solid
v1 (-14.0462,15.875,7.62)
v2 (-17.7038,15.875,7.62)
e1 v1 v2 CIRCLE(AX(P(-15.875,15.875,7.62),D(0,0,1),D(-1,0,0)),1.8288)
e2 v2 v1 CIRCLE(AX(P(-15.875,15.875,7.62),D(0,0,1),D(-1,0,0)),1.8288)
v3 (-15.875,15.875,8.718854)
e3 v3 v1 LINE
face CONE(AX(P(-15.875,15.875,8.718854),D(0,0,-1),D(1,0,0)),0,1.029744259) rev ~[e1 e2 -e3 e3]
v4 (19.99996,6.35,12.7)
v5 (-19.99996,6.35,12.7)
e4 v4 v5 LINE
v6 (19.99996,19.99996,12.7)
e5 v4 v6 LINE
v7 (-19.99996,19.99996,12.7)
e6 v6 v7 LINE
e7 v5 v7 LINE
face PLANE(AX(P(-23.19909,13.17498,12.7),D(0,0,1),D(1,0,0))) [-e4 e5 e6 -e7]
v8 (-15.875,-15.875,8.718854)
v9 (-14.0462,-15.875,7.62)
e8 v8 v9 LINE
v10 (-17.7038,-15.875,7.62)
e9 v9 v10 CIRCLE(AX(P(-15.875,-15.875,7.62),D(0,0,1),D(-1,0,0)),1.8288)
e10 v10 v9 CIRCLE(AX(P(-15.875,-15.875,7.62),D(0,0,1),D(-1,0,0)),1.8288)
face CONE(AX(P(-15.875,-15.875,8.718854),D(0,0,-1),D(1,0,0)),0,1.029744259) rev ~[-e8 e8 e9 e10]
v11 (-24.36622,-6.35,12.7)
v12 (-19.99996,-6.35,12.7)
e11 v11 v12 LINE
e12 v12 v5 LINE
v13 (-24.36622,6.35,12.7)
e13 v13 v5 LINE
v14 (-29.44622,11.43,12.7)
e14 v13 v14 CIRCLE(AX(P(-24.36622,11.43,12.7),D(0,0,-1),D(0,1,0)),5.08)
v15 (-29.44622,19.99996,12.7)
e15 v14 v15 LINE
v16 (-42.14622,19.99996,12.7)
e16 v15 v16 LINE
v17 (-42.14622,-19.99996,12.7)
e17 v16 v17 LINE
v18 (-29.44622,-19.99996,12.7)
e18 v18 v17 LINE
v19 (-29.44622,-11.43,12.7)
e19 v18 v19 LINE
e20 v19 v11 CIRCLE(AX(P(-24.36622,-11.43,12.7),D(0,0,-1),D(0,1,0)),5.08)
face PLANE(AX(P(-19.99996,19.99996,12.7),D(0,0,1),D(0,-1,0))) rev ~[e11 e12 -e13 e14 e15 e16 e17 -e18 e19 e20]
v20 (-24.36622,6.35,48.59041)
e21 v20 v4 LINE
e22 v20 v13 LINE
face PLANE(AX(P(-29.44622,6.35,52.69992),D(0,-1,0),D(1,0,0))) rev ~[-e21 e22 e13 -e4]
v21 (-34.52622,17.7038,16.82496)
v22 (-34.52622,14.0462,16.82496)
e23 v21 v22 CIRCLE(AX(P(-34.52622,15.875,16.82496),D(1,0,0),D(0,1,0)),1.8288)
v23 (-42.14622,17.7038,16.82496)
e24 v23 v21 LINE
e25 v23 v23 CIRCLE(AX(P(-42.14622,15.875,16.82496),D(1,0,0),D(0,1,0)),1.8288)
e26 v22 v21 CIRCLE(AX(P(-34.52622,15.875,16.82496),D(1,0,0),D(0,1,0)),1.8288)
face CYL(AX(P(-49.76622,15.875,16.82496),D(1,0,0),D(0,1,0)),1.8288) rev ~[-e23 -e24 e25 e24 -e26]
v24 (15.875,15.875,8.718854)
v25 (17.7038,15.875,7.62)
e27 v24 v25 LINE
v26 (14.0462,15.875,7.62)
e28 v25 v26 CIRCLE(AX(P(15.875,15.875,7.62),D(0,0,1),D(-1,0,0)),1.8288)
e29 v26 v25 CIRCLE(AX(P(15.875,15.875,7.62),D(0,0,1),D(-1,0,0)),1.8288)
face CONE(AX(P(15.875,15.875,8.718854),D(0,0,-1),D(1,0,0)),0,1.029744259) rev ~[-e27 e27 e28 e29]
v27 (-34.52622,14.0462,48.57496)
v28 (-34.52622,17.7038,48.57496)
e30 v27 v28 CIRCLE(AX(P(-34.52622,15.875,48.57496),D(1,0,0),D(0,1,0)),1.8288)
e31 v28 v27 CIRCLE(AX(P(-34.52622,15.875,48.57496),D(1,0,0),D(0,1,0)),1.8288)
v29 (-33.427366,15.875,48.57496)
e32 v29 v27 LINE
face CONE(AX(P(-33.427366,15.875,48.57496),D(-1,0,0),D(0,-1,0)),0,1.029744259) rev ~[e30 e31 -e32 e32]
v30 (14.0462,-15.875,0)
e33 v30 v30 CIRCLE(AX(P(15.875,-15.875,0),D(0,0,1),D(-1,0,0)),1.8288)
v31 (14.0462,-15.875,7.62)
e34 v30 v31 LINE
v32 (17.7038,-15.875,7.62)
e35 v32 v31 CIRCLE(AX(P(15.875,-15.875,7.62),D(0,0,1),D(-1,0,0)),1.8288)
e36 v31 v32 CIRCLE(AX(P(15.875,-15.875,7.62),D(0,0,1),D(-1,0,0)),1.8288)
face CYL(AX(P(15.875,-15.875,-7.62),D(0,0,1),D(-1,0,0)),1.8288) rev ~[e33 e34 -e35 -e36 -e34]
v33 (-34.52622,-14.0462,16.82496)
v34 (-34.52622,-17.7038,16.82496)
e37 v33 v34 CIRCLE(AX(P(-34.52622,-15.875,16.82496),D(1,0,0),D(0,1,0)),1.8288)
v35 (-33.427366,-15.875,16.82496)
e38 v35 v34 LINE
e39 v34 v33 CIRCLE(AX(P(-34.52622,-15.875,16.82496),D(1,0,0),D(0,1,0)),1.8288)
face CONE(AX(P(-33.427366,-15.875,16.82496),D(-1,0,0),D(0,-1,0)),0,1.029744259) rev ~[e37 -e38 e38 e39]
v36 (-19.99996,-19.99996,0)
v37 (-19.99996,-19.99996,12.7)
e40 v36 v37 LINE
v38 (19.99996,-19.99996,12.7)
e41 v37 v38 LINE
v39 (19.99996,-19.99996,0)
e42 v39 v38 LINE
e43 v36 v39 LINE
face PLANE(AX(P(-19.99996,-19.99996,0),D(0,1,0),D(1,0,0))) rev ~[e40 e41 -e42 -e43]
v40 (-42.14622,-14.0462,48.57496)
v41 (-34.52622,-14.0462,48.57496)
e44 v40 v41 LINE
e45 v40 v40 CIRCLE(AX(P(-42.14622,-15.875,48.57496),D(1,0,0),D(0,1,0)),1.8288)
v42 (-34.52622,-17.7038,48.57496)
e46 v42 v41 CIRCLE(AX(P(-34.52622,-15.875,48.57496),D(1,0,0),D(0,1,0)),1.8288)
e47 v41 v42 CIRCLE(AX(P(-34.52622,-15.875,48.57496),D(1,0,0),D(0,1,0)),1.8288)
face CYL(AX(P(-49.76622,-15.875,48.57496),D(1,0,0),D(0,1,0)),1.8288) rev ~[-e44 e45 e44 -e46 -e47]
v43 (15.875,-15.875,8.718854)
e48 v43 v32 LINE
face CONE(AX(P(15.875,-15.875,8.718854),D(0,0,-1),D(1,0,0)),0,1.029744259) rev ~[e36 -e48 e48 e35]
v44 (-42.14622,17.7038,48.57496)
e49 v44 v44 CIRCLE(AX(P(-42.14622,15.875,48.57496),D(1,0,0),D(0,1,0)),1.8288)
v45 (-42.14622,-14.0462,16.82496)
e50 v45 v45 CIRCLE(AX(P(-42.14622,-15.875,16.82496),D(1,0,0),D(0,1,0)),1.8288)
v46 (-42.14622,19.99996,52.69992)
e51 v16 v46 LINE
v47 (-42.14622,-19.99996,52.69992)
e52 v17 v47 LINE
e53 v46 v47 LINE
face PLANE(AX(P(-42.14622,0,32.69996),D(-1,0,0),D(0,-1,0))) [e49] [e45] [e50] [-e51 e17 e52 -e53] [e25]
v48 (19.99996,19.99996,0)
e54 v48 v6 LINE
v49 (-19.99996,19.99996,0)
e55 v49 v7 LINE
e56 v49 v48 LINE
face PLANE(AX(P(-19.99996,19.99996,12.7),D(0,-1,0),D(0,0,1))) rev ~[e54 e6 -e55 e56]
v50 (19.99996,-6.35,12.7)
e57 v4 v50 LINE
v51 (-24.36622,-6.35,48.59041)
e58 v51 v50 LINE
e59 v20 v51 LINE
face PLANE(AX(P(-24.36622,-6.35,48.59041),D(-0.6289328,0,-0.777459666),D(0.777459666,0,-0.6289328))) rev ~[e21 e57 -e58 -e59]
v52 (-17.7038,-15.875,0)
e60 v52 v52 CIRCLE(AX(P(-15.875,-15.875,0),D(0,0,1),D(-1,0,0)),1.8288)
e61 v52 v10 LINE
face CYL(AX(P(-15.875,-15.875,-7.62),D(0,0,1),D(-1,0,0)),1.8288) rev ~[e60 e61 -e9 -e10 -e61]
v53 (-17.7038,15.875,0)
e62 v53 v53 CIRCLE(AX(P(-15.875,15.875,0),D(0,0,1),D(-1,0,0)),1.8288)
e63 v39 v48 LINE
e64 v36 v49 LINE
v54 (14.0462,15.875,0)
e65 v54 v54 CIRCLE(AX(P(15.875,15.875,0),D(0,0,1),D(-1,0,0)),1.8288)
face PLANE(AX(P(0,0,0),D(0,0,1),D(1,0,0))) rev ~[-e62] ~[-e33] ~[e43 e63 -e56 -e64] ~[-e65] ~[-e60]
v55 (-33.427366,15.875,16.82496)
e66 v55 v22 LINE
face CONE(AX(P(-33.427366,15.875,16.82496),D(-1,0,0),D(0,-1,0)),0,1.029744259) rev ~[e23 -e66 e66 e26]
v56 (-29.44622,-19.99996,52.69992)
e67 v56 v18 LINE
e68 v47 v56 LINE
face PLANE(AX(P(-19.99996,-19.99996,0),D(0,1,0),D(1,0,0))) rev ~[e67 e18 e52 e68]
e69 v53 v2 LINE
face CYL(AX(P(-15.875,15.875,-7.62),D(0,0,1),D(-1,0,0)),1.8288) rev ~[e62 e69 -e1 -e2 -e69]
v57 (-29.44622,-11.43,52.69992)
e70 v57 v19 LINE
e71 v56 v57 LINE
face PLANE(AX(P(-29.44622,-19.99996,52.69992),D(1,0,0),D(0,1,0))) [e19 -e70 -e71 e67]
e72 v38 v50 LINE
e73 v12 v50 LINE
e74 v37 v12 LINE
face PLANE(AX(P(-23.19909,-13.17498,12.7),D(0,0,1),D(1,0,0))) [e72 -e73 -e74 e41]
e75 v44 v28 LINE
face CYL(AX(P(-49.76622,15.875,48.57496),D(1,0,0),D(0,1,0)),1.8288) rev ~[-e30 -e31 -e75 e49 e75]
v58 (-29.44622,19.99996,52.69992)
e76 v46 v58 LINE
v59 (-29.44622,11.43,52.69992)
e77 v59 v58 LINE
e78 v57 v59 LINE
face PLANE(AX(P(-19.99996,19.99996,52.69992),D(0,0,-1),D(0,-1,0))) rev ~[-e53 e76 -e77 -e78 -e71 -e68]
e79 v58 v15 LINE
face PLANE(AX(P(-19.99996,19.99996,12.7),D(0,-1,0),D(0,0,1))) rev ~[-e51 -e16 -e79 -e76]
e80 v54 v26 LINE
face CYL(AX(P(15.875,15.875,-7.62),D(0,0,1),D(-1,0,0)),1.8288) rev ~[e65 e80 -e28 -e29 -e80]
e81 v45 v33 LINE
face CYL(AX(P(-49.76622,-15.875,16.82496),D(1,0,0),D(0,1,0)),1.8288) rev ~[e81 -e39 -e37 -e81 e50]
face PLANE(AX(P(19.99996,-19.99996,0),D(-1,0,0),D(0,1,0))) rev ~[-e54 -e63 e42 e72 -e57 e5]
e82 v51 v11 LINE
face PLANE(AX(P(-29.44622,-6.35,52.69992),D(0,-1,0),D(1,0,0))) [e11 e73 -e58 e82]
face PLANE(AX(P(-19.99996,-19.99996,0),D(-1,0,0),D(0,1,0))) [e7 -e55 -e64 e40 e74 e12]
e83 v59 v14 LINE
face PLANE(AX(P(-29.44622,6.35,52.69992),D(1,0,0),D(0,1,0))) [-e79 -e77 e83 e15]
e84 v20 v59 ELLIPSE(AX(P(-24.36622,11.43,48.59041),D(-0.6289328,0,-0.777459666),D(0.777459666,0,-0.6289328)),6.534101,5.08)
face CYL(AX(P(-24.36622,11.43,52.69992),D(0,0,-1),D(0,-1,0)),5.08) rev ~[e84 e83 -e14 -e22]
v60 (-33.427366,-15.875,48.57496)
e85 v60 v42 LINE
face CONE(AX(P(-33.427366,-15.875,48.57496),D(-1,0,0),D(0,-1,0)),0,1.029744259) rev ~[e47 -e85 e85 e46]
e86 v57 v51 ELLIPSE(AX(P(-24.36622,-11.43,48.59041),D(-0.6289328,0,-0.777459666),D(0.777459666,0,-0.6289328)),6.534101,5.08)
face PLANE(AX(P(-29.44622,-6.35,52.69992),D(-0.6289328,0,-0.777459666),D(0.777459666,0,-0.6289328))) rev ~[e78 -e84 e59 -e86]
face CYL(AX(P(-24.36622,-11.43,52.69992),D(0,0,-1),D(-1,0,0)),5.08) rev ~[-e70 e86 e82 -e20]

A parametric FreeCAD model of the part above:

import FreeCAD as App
import Part
import Sketcher

V = App.Vector
Q = App.Units.Quantity


def edges_at(feature, points):
    """Names of the edges that pass closest to the given points."""
    edges = feature.Shape.Edges
    near = lambda p: min(range(len(edges)), key=lambda i: edges[i].distToShape(Part.Vertex(*p))[0])
    return sorted({f"Edge{near(p) + 1}" for p in points})

doc = App.newDocument("Part")
body = doc.addObject("PartDesign::Body", "Body")

# Sketch on XY plane
sketch1 = doc.addObject("Sketcher::SketchObject", "Sketch")
body.addObject(sketch1)
sketch1.AttachmentSupport = (doc.XY_Plane, [""])
sketch1.MapMode = "FlatFace"
sketch1.addGeometry(Part.LineSegment(V(-19.99996, 19.99996, 0), V(-19.99996, -19.99996, 0)), False)
sketch1.addGeometry(Part.LineSegment(V(-19.99996, -19.99996, 0), V(19.99996, -19.99996, 0)), False)
sketch1.addGeometry(Part.LineSegment(V(19.99996, -19.99996, 0), V(19.99996, 19.99996, 0)), False)
sketch1.addGeometry(Part.LineSegment(V(19.99996, 19.99996, 0), V(-19.99996, 19.99996, 0)), False)
sketch1.addConstraint(Sketcher.Constraint("Coincident", 0, 2, 1, 1))
sketch1.addConstraint(Sketcher.Constraint("Coincident", 1, 2, 2, 1))
sketch1.addConstraint(Sketcher.Constraint("Coincident", 2, 2, 3, 1))
sketch1.addConstraint(Sketcher.Constraint("Coincident", 3, 2, 0, 1))
sketch1.addConstraint(Sketcher.Constraint("Vertical", 0))
sketch1.addConstraint(Sketcher.Constraint("Horizontal", 1))
sketch1.addConstraint(Sketcher.Constraint("Vertical", 2))
sketch1.addConstraint(Sketcher.Constraint("Horizontal", 3))
sketch1.addConstraint(Sketcher.Constraint("Symmetric", 0, 2, 2, 2, -1, 1))
sketch1.addConstraint(Sketcher.Constraint("Equal", 3, 0))
sketch1.addConstraint(Sketcher.Constraint("DistanceX", 1, 1, 1, 2, Q("1.5748 in")))
pad1 = doc.addObject("PartDesign::Pad", "Pad")
body.addObject(pad1)
pad1.Profile = sketch1
pad1.Length = Q("0.5 in")

# Sketch on XY plane
sketch2 = doc.addObject("Sketcher::SketchObject", "Sketch001")
body.addObject(sketch2)
sketch2.AttachmentSupport = (doc.XY_Plane, [""])
sketch2.MapMode = "FlatFace"
sketch2.addGeometry(Part.Circle(V(-15.9, 15.9, 0), V(0, 0, 1), 1.8), False)
sketch2.addGeometry(Part.Circle(V(15.9, 15.9, 0), V(0, 0, 1), 1.8), False)
sketch2.addGeometry(Part.Circle(V(15.9, -15.9, 0), V(0, 0, 1), 1.8), False)
sketch2.addGeometry(Part.Circle(V(-15.9, -15.9, 0), V(0, 0, 1), 1.8), False)
sketch2.addConstraint(Sketcher.Constraint("Equal", 0, 1))
sketch2.addConstraint(Sketcher.Constraint("Equal", 1, 2))
sketch2.addConstraint(Sketcher.Constraint("Equal", 2, 3))
sketch2.addConstraint(Sketcher.Constraint("Symmetric", 0, 3, 2, 3, -1, 1))
sketch2.addConstraint(Sketcher.Constraint("Symmetric", 1, 3, 3, 3, -1, 1))
sketch2.addConstraint(Sketcher.Constraint("Symmetric", 0, 3, 1, 3, -2))
sketch2.addConstraint(Sketcher.Constraint("Diameter", 0, Q("0.144 in")))
sketch2.addConstraint(Sketcher.Constraint("DistanceX", 0, 3, 1, 3, Q("1.25 in")))
sketch2.addConstraint(Sketcher.Constraint("DistanceY", 2, 3, 1, 3, Q("1.25 in")))
doc.recompute()
hole = doc.addObject("PartDesign::Hole", "Hole")
body.addObject(hole)
hole.Profile = sketch2
hole.ThreadType = "None"
hole.Diameter = Q("0.144 in")
hole.DepthType = "Dimension"
hole.Depth = Q("0.3 in")
hole.DrillPoint = "Angled"
hole.DrillPointAngle = 118
hole.Reversed = True

# Sketch on XY plane
sketch3 = doc.addObject("Sketcher::SketchObject", "Sketch002")
body.addObject(sketch3)
sketch3.AttachmentSupport = (doc.XY_Plane, [""])
sketch3.MapMode = "FlatFace"
sketch3.AttachmentOffset = App.Placement(V(0, 0, 0.5 * 25.4), App.Rotation())
sketch3.addGeometry(Part.LineSegment(V(-19.99996, 6.35, 0), V(-19.99996, -6.35, 0)), False)
sketch3.addGeometry(Part.LineSegment(V(-19.99996, -6.35, 0), V(19.99996, -6.35, 0)), False)
sketch3.addGeometry(Part.LineSegment(V(19.99996, -6.35, 0), V(19.99996, 6.35, 0)), False)
sketch3.addGeometry(Part.LineSegment(V(19.99996, 6.35, 0), V(-19.99996, 6.35, 0)), False)
sketch3.addConstraint(Sketcher.Constraint("Coincident", 0, 2, 1, 1))
sketch3.addConstraint(Sketcher.Constraint("Coincident", 1, 2, 2, 1))
sketch3.addConstraint(Sketcher.Constraint("Coincident", 2, 2, 3, 1))
sketch3.addConstraint(Sketcher.Constraint("Coincident", 3, 2, 0, 1))
sketch3.addConstraint(Sketcher.Constraint("Vertical", 0))
sketch3.addConstraint(Sketcher.Constraint("Horizontal", 1))
sketch3.addConstraint(Sketcher.Constraint("Vertical", 2))
sketch3.addConstraint(Sketcher.Constraint("Horizontal", 3))
sketch3.addConstraint(Sketcher.Constraint("Symmetric", 0, 2, 2, 2, -1, 1))
sketch3.addConstraint(Sketcher.Constraint("DistanceY", 0, 2, 0, 1, Q("0.5 in")))
sketch3.addConstraint(Sketcher.Constraint("DistanceX", 1, 1, 1, 2, Q("1.5748 in")))
pad2 = doc.addObject("PartDesign::Pad", "Pad001")
body.addObject(pad2)
pad2.Profile = sketch3
pad2.Length = Q("1.5748 in")

# Sketch on YZ plane
sketch4 = doc.addObject("Sketcher::SketchObject", "Sketch003")
body.addObject(sketch4)
sketch4.AttachmentSupport = (doc.YZ_Plane, [""])
sketch4.MapMode = "FlatFace"
sketch4.AttachmentOffset = App.Placement(V(0, 0, -0.7874 * 25.4), App.Rotation())
sketch4.addGeometry(Part.LineSegment(V(20, 53, 0), V(20, 13, 0)), False)
sketch4.addGeometry(Part.LineSegment(V(20, 13, 0), V(-20, 13, 0)), False)
sketch4.addGeometry(Part.LineSegment(V(-20, 13, 0), V(-20, 53, 0)), False)
sketch4.addGeometry(Part.LineSegment(V(-20, 53, 0), V(20, 53, 0)), False)
sketch4.addConstraint(Sketcher.Constraint("Coincident", 0, 2, 1, 1))
sketch4.addConstraint(Sketcher.Constraint("Coincident", 1, 2, 2, 1))
sketch4.addConstraint(Sketcher.Constraint("Coincident", 2, 2, 3, 1))
sketch4.addConstraint(Sketcher.Constraint("Coincident", 3, 2, 0, 1))
sketch4.addConstraint(Sketcher.Constraint("Vertical", 0))
sketch4.addConstraint(Sketcher.Constraint("Horizontal", 1))
sketch4.addConstraint(Sketcher.Constraint("Vertical", 2))
sketch4.addConstraint(Sketcher.Constraint("Horizontal", 3))
sketch4.addConstraint(Sketcher.Constraint("Equal", 3, 0))
sketch4.addConstraint(Sketcher.Constraint("DistanceY", -1, 1, 0, 2, Q("0.5 in")))
sketch4.addConstraint(Sketcher.Constraint("DistanceX", 1, 2, 1, 1, Q("1.5748 in")))
sketch4.addConstraint(Sketcher.Constraint("DistanceX", -1, 1, 0, 2, Q("0.7874 in")))
pad3 = doc.addObject("PartDesign::Pad", "Pad002")
body.addObject(pad3)
pad3.Profile = sketch4
pad3.Type = "TwoLengths"
pad3.Length = Q("0.8719 in")
pad3.Length2 = Q("0.12 in")
pad3.Reversed = True

# Sketch on XY plane
sketch5 = doc.addObject("Sketcher::SketchObject", "Sketch004")
body.addObject(sketch5)
sketch5.AttachmentSupport = (doc.XY_Plane, [""])
sketch5.MapMode = "FlatFace"
sketch5.AttachmentOffset = App.Placement(V(0, 0, 2.0748 * 25.4), App.Rotation())
sketch5.addGeometry(Part.LineSegment(V(-29, 20, 0), V(-29, 6, 0)), False)
sketch5.addGeometry(Part.LineSegment(V(-29, 6, 0), V(-17, 6, 0)), False)
sketch5.addGeometry(Part.LineSegment(V(-17, 6, 0), V(-17, 20, 0)), False)
sketch5.addGeometry(Part.LineSegment(V(-17, 20, 0), V(-29, 20, 0)), False)
sketch5.addGeometry(Part.LineSegment(V(-29, -6, 0), V(-29, -20, 0)), False)
sketch5.addGeometry(Part.LineSegment(V(-29, -20, 0), V(-17, -20, 0)), False)
sketch5.addGeometry(Part.LineSegment(V(-17, -20, 0), V(-17, -6, 0)), False)
sketch5.addGeometry(Part.LineSegment(V(-17, -6, 0), V(-29, -6, 0)), False)
sketch5.addConstraint(Sketcher.Constraint("Coincident", 0, 2, 1, 1))
sketch5.addConstraint(Sketcher.Constraint("Coincident", 1, 2, 2, 1))
sketch5.addConstraint(Sketcher.Constraint("Coincident", 2, 2, 3, 1))
sketch5.addConstraint(Sketcher.Constraint("Coincident", 3, 2, 0, 1))
sketch5.addConstraint(Sketcher.Constraint("Coincident", 4, 2, 5, 1))
sketch5.addConstraint(Sketcher.Constraint("Coincident", 5, 2, 6, 1))
sketch5.addConstraint(Sketcher.Constraint("Coincident", 6, 2, 7, 1))
sketch5.addConstraint(Sketcher.Constraint("Coincident", 7, 2, 4, 1))
sketch5.addConstraint(Sketcher.Constraint("Vertical", 0))
sketch5.addConstraint(Sketcher.Constraint("Horizontal", 1))
sketch5.addConstraint(Sketcher.Constraint("Vertical", 2))
sketch5.addConstraint(Sketcher.Constraint("Horizontal", 3))
sketch5.addConstraint(Sketcher.Constraint("Vertical", 4))
sketch5.addConstraint(Sketcher.Constraint("Horizontal", 5))
sketch5.addConstraint(Sketcher.Constraint("Vertical", 6))
sketch5.addConstraint(Sketcher.Constraint("Horizontal", 7))
sketch5.addConstraint(Sketcher.Constraint("Symmetric", 3, 2, 4, 2, -1))
sketch5.addConstraint(Sketcher.Constraint("Symmetric", 1, 2, 6, 2, -1))
sketch5.addConstraint(Sketcher.Constraint("DistanceY", 6, 2, 1, 2, Q("0.5 in")))
sketch5.addConstraint(Sketcher.Constraint("DistanceX", 1, 1, 1, 2, Q("0.4919 in")))
sketch5.addConstraint(Sketcher.Constraint("DistanceY", 0, 2, 0, 1, Q("0.5374 in")))
sketch5.addConstraint(Sketcher.Constraint("DistanceX", 0, 2, -1, 1, Q("1.1593 in")))
pocket1 = doc.addObject("PartDesign::Pocket", "Pocket")
body.addObject(pocket1)
pocket1.Profile = sketch5
pocket1.Length = Q("1.5748 in")
doc.recompute()

fillet = doc.addObject("PartDesign::Fillet", "Fillet")
body.addObject(fillet)
fillet.Base = (pocket1, edges_at(pocket1, [(-29.446, -6.35, 32.7), (-29.446, 6.35, 32.7)]))
fillet.Radius = Q("0.2 in")

# Sketch on YZ plane
sketch6 = doc.addObject("Sketcher::SketchObject", "Sketch005")
body.addObject(sketch6)
sketch6.AttachmentSupport = (doc.YZ_Plane, [""])
sketch6.MapMode = "FlatFace"
sketch6.AttachmentOffset = App.Placement(V(0, 0, -1.6593 * 25.4), App.Rotation())
sketch6.addGeometry(Part.Circle(V(15.9, 48.6, 0), V(0, 0, 1), 1.8), False)
sketch6.addGeometry(Part.Circle(V(-15.9, 48.6, 0), V(0, 0, 1), 1.8), False)
sketch6.addGeometry(Part.Circle(V(-15.9, 16.8, 0), V(0, 0, 1), 1.8), False)
sketch6.addGeometry(Part.Circle(V(15.9, 16.8, 0), V(0, 0, 1), 1.8), False)
sketch6.addConstraint(Sketcher.Constraint("Equal", 0, 1))
sketch6.addConstraint(Sketcher.Constraint("Equal", 1, 2))
sketch6.addConstraint(Sketcher.Constraint("Equal", 2, 3))
sketch6.addConstraint(Sketcher.Constraint("Symmetric", 0, 3, 1, 3, -2))
sketch6.addConstraint(Sketcher.Constraint("Symmetric", 2, 3, 3, 3, -2))
sketch6.addConstraint(Sketcher.Constraint("Vertical", 1, 3, 2, 3))
sketch6.addConstraint(Sketcher.Constraint("Diameter", 0, Q("0.144 in")))
sketch6.addConstraint(Sketcher.Constraint("DistanceX", 1, 3, 0, 3, Q("1.25 in")))
sketch6.addConstraint(Sketcher.Constraint("DistanceY", 2, 3, 1, 3, Q("1.25 in")))
sketch6.addConstraint(Sketcher.Constraint("DistanceY", -1, 1, 0, 3, Q("1.9124 in")))
doc.recompute()
hole2 = doc.addObject("PartDesign::Hole", "Hole001")
body.addObject(hole2)
hole2.Profile = sketch6
hole2.ThreadType = "None"
hole2.Diameter = Q("0.144 in")
hole2.DepthType = "Dimension"
hole2.Depth = Q("0.3 in")
hole2.DrillPoint = "Angled"
hole2.DrillPointAngle = 118
hole2.Reversed = True

# Sketch on XZ plane
sketch7 = doc.addObject("Sketcher::SketchObject", "Sketch006")
body.addObject(sketch7)
sketch7.AttachmentSupport = (doc.XZ_Plane, [""])
sketch7.MapMode = "FlatFace"
sketch7.AttachmentOffset = App.Placement(V(0, 0, 0.25 * 25.4), App.Rotation())
sketch7.addGeometry(Part.LineSegment(V(-29, 53, 0), V(-24, 49, 0)), False)
sketch7.addGeometry(Part.LineSegment(V(-24, 49, 0), V(20, 13, 0)), False)
sketch7.addGeometry(Part.LineSegment(V(20, 13, 0), V(20, 53, 0)), False)
sketch7.addGeometry(Part.LineSegment(V(20, 53, 0), V(-29, 53, 0)), False)
sketch7.addConstraint(Sketcher.Constraint("Coincident", 0, 2, 1, 1))
sketch7.addConstraint(Sketcher.Constraint("Coincident", 1, 2, 2, 1))
sketch7.addConstraint(Sketcher.Constraint("Coincident", 2, 2, 3, 1))
sketch7.addConstraint(Sketcher.Constraint("Coincident", 3, 2, 0, 1))
sketch7.addConstraint(Sketcher.Constraint("Vertical", 2))
sketch7.addConstraint(Sketcher.Constraint("Horizontal", 3))
sketch7.addConstraint(Sketcher.Constraint("Parallel", 0, 1))
sketch7.addConstraint(Sketcher.Constraint("DistanceY", -1, 1, 1, 2, Q("0.5 in")))
sketch7.addConstraint(Sketcher.Constraint("DistanceX", 3, 2, 0, 2, Q("0.2 in")))
sketch7.addConstraint(Sketcher.Constraint("DistanceX", 3, 2, 3, 1, Q("1.9467 in")))
sketch7.addConstraint(Sketcher.Constraint("DistanceY", 2, 1, 2, 2, Q("1.5748 in")))
sketch7.addConstraint(Sketcher.Constraint("DistanceX", 0, 2, -1, 1, Q("0.9593 in")))
pocket2 = doc.addObject("PartDesign::Pocket", "Pocket001")
body.addObject(pocket2)
pocket2.Profile = sketch7
pocket2.Length = Q("2 in")
pocket2.Midplane = True

doc.recompute()
